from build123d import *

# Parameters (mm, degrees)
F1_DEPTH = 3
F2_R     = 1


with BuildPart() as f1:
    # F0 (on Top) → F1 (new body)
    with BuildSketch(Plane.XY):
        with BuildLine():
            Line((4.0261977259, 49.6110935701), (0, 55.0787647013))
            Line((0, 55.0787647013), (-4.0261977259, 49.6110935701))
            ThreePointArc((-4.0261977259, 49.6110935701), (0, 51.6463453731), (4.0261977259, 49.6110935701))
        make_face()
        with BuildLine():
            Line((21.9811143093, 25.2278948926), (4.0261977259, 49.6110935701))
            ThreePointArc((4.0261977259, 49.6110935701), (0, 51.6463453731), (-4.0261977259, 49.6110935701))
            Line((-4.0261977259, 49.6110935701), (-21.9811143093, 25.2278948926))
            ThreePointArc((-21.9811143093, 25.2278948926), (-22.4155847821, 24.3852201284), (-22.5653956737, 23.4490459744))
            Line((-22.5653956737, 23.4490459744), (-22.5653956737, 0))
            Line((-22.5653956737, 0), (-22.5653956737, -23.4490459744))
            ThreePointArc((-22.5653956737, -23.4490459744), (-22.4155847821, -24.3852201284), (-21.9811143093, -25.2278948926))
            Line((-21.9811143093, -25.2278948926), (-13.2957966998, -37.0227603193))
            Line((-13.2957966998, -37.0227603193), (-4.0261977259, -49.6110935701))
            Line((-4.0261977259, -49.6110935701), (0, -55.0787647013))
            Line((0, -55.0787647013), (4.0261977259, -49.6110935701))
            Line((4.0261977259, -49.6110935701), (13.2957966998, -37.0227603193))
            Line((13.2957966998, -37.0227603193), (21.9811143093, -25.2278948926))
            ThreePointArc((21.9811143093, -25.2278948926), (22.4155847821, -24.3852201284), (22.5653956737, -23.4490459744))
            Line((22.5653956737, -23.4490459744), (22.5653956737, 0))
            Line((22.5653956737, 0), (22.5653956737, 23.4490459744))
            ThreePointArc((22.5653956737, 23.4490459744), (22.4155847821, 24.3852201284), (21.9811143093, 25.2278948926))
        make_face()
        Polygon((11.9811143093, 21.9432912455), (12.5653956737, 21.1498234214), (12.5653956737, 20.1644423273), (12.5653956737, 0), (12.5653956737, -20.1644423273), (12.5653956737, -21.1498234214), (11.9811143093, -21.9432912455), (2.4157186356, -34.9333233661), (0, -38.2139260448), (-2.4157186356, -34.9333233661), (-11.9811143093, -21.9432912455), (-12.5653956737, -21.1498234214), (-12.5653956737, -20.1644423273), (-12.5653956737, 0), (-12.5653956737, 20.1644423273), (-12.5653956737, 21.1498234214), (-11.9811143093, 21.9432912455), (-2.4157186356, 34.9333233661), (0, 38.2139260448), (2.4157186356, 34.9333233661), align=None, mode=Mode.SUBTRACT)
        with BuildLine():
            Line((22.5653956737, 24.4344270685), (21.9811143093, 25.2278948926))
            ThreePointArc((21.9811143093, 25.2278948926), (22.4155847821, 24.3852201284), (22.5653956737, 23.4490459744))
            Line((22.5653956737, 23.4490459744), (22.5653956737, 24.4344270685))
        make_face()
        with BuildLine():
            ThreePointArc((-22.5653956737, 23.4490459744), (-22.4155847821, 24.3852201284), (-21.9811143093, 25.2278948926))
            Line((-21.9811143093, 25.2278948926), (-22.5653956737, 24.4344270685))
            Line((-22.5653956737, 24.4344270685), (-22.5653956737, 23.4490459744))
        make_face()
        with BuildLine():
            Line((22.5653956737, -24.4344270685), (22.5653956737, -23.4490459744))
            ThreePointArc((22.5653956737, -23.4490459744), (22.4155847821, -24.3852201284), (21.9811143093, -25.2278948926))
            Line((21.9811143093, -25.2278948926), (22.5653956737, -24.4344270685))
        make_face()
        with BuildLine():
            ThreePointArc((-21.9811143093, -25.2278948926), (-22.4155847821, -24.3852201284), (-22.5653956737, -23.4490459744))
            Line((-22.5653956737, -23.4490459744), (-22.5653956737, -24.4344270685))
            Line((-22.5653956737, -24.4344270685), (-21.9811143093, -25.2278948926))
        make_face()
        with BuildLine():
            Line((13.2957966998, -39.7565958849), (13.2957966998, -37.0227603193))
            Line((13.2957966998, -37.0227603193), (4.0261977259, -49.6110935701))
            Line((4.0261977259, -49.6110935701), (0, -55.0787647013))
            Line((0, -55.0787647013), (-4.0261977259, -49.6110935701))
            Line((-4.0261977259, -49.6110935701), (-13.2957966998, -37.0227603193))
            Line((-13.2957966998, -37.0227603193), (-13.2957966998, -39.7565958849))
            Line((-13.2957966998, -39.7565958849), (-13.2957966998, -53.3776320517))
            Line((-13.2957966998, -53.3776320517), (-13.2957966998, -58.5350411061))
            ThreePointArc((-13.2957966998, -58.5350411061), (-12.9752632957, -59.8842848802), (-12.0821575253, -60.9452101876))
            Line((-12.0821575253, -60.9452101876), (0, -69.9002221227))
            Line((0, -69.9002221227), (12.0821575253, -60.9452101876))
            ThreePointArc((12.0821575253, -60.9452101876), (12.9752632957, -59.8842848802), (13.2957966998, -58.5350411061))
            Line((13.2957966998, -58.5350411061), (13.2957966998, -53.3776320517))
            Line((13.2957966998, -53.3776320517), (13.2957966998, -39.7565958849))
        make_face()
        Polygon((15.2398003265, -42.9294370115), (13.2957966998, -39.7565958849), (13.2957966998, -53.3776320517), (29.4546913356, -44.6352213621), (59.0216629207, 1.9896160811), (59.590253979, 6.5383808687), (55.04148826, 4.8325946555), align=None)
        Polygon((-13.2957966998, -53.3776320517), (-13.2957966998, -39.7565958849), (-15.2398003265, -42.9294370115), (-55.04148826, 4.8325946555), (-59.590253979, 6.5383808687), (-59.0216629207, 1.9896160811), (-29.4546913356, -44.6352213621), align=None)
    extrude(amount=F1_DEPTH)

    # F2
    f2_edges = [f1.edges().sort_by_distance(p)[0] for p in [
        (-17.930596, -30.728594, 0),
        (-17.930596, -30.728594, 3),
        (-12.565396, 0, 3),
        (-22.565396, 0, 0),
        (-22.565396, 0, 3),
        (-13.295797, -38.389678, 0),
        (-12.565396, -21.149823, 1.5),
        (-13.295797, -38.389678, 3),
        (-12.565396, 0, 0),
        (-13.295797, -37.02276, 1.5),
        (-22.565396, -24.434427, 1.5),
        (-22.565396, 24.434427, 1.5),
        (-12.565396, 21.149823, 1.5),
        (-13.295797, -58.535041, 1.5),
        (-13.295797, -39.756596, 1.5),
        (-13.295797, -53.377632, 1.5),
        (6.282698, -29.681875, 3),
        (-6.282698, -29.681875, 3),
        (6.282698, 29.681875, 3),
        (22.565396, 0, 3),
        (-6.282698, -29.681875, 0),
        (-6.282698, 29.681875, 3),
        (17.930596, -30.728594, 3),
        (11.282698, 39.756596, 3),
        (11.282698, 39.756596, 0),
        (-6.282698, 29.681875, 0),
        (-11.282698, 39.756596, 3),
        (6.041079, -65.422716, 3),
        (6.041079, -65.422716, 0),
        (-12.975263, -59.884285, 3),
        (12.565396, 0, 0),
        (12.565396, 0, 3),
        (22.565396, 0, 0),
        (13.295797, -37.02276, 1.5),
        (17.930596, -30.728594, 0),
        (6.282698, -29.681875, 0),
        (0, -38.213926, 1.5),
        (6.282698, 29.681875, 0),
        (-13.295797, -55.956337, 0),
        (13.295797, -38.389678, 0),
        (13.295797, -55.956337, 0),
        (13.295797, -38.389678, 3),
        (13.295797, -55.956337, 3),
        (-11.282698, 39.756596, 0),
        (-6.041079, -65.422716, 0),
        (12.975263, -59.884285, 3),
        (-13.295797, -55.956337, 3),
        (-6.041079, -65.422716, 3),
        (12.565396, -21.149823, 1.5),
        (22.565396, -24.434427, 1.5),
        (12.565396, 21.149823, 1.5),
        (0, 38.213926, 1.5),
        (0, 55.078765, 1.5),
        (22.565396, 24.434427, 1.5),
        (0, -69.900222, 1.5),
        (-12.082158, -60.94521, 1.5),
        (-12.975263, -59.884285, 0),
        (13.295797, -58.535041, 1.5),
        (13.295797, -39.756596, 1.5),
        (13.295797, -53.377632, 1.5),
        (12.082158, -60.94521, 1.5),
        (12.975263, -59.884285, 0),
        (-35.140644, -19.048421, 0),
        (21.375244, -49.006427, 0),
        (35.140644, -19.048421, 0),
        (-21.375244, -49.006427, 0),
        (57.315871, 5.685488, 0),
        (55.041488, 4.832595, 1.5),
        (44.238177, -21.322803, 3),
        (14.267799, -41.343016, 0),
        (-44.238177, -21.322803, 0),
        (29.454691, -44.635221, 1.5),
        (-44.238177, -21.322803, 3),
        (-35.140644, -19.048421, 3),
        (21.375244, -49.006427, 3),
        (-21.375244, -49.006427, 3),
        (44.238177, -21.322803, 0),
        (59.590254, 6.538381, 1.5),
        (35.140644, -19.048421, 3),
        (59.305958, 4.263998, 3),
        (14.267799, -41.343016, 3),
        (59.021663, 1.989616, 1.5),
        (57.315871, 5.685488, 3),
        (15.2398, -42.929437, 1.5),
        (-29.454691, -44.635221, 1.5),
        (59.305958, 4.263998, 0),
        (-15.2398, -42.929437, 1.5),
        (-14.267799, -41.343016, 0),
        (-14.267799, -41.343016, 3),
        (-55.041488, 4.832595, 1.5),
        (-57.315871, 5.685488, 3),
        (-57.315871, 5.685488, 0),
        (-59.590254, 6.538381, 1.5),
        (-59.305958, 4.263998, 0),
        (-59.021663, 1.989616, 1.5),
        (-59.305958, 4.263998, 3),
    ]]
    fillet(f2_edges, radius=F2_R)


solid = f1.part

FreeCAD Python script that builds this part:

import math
import FreeCAD as App
import Part
import Sketcher

V = App.Vector


def add_polygon(sketch, points):
    """Adds a closed chain of lines whose ends are joined by coincident constraints."""
    first, n = sketch.GeometryCount, len(points)
    for a, b in zip(points, points[1:] + points[:1]):
        sketch.addGeometry(Part.LineSegment(App.Vector(*a, 0), App.Vector(*b, 0)), False)
    for i in range(n):
        sketch.addConstraint(Sketcher.Constraint("Coincident", first + i, 2, first + (i + 1) % n, 1))

doc = App.newDocument("Part")
body = doc.addObject("PartDesign::Body", "Body")

sketch1 = body.newObject("Sketcher::SketchObject", "Sketch")
sketch1.AttachmentSupport = (doc.getObject("XY_Plane"), [""])
sketch1.MapMode = "FlatFace"
sketch1.addGeometry(Part.LineSegment(V(4, 49.6, 0), V(0, 55.1, 0)), False)
sketch1.addGeometry(Part.LineSegment(V(0, 55.1, 0), V(-4, 49.6, 0)), False)
sketch1.addGeometry(Part.LineSegment(V(-4, 49.6, 0), V(-22, 25.2, 0)), False)
sketch1.addGeometry(Part.LineSegment(V(-22, 25.2, 0), V(-22.6, 24.4, 0)), False)
sketch1.addGeometry(Part.LineSegment(V(-22.6, 24.4, 0), V(-22.6, -24.4, 0)), False)
sketch1.addGeometry(Part.LineSegment(V(-22.6, -24.4, 0), V(-22, -25.2, 0)), False)
sketch1.addGeometry(Part.LineSegment(V(-22, -25.2, 0), V(-13.3, -37, 0)), False)
sketch1.addGeometry(Part.LineSegment(V(-13.3, -37, 0), V(-13.3, -39.8, 0)), False)
sketch1.addGeometry(Part.LineSegment(V(-13.3, -39.8, 0), V(-15.2, -42.9, 0)), False)
sketch1.addGeometry(Part.LineSegment(V(-15.2, -42.9, 0), V(-55, 4.8, 0)), False)
sketch1.addGeometry(Part.LineSegment(V(-55, 4.8, 0), V(-59.6, 6.5, 0)), False)
sketch1.addGeometry(Part.LineSegment(V(-59.6, 6.5, 0), V(-59, 2, 0)), False)
sketch1.addGeometry(Part.LineSegment(V(-59, 2, 0), V(-29.5, -44.6, 0)), False)
sketch1.addGeometry(Part.LineSegment(V(-29.5, -44.6, 0), V(-13.3, -53.4, 0)), False)
sketch1.addGeometry(Part.LineSegment(V(-13.3, -53.4, 0), V(-13.3, -58.5, 0)), False)
sketch1.addGeometry(Part.ArcOfCircle(Part.Circle(V(-10.3, -58.5, 0), V(0, 0, 1), 3), math.radians(180), math.radians(233)), False)
sketch1.addGeometry(Part.LineSegment(V(-12.1, -60.9, 0), V(0, -69.9, 0)), False)
sketch1.addGeometry(Part.LineSegment(V(0, -69.9, 0), V(12.1, -60.9, 0)), False)
sketch1.addGeometry(Part.ArcOfCircle(Part.Circle(V(10.3, -58.5, 0), V(0, 0, 1), 3), math.radians(-53), math.radians(0)), False)
sketch1.addGeometry(Part.LineSegment(V(13.3, -58.5, 0), V(13.3, -53.4, 0)), False)
sketch1.addGeometry(Part.LineSegment(V(13.3, -53.4, 0), V(29.5, -44.6, 0)), False)
sketch1.addGeometry(Part.LineSegment(V(29.5, -44.6, 0), V(59, 2, 0)), False)
sketch1.addGeometry(Part.LineSegment(V(59, 2, 0), V(59.6, 6.5, 0)), False)
sketch1.addGeometry(Part.LineSegment(V(59.6, 6.5, 0), V(55, 4.8, 0)), False)
sketch1.addGeometry(Part.LineSegment(V(55, 4.8, 0), V(15.2, -42.9, 0)), False)
sketch1.addGeometry(Part.LineSegment(V(15.2, -42.9, 0), V(13.3, -39.8, 0)), False)
sketch1.addGeometry(Part.LineSegment(V(13.3, -39.8, 0), V(13.3, -37, 0)), False)
sketch1.addGeometry(Part.LineSegment(V(13.3, -37, 0), V(22, -25.2, 0)), False)
sketch1.addGeometry(Part.LineSegment(V(22, -25.2, 0), V(22.6, -24.4, 0)), False)
sketch1.addGeometry(Part.LineSegment(V(22.6, -24.4, 0), V(22.6, 24.4, 0)), False)
sketch1.addGeometry(Part.LineSegment(V(22.6, 24.4, 0), V(22, 25.2, 0)), False)
sketch1.addGeometry(Part.LineSegment(V(22, 25.2, 0), V(4, 49.6, 0)), False)
add_polygon(sketch1, [(2.4, 34.9), (12, 21.9), (12.6, 21.1), (12.6, -21.1), (12, -21.9), (2.4, -34.9), (0, -38.2), (-2.4, -34.9), (-12, -21.9), (-12.6, -21.1), (-12.6, 21.1), (-12, 21.9), (-2.4, 34.9), (0, 38.2)])
sketch1.addConstraint([
    Sketcher.Constraint("Coincident", 0, 2, 1, 1),
    Sketcher.Constraint("Coincident", 1, 2, 2, 1),
    Sketcher.Constraint("Coincident", 2, 2, 3, 1),
    Sketcher.Constraint("Coincident", 3, 2, 4, 1),
    Sketcher.Constraint("Coincident", 4, 2, 5, 1),
    Sketcher.Constraint("Coincident", 5, 2, 6, 1),
    Sketcher.Constraint("Coincident", 6, 2, 7, 1),
    Sketcher.Constraint("Coincident", 7, 2, 8, 1),
    Sketcher.Constraint("Coincident", 8, 2, 9, 1),
    Sketcher.Constraint("Coincident", 9, 2, 10, 1),
    Sketcher.Constraint("Coincident", 10, 2, 11, 1),
    Sketcher.Constraint("Coincident", 11, 2, 12, 1),
    Sketcher.Constraint("Coincident", 12, 2, 13, 1),
    Sketcher.Constraint("Coincident", 13, 2, 14, 1),
    Sketcher.Constraint("Tangent", 14, 2, 15, 1),
    Sketcher.Constraint("Tangent", 15, 2, 16, 1),
    Sketcher.Constraint("Coincident", 16, 2, 17, 1),
    Sketcher.Constraint("Tangent", 17, 2, 18, 1),
    Sketcher.Constraint("Tangent", 18, 2, 19, 1),
    Sketcher.Constraint("Coincident", 19, 2, 20, 1),
    Sketcher.Constraint("Coincident", 20, 2, 21, 1),
    Sketcher.Constraint("Coincident", 21, 2, 22, 1),
    Sketcher.Constraint("Coincident", 22, 2, 23, 1),
    Sketcher.Constraint("Coincident", 23, 2, 24, 1),
    Sketcher.Constraint("Coincident", 24, 2, 25, 1),
    Sketcher.Constraint("Coincident", 25, 2, 26, 1),
    Sketcher.Constraint("Coincident", 26, 2, 27, 1),
    Sketcher.Constraint("Coincident", 27, 2, 28, 1),
    Sketcher.Constraint("Coincident", 28, 2, 29, 1),
    Sketcher.Constraint("Coincident", 29, 2, 30, 1),
    Sketcher.Constraint("Coincident", 30, 2, 31, 1),
    Sketcher.Constraint("Coincident", 31, 2, 0, 1),
    Sketcher.Constraint("Vertical", 4),
    Sketcher.Constraint("Vertical", 7),
    Sketcher.Constraint("Vertical", 14),
    Sketcher.Constraint("Vertical", 19),
    Sketcher.Constraint("Vertical", 26),
    Sketcher.Constraint("Vertical", 29),
    Sketcher.Constraint("Vertical", 34),
    Sketcher.Constraint("Vertical", 41),
    Sketcher.Constraint("Equal", 15, 18),
    Sketcher.Constraint("Symmetric", 2, 2, 27, 2, -1, 1),
    Sketcher.Constraint("Symmetric", 3, 2, 28, 2, -1, 1),
    Sketcher.Constraint("Symmetric", 5, 2, 30, 2, -1, 1),
    Sketcher.Constraint("Symmetric", 32, 2, 39, 2, -1, 1),
    Sketcher.Constraint("Symmetric", 33, 2, 40, 2, -1, 1),
    Sketcher.Constraint("Symmetric", 35, 2, 42, 2, -1, 1),
    Sketcher.Constraint("Symmetric", 36, 2, 43, 2, -1, 1),
    Sketcher.Constraint("Symmetric", 37, 2, 44, 2, -1, 1),
    Sketcher.Constraint("Symmetric", 38, 2, 45, 2, -1, 1),
    Sketcher.Constraint("Symmetric", 15, 3, 18, 3, -2),
    Sketcher.Constraint("Symmetric", 12, 2, 20, 2, -2),
    Sketcher.Constraint("Symmetric", 11, 2, 21, 2, -2),
    Sketcher.Constraint("Symmetric", 10, 2, 22, 2, -2),
    Sketcher.Constraint("Symmetric", 9, 2, 23, 2, -2),
    Sketcher.Constraint("Symmetric", 8, 2, 24, 2, -2),
    Sketcher.Constraint("Symmetric", 7, 2, 25, 2, -2),
    Sketcher.Constraint("Symmetric", 5, 2, 27, 2, -2),
    Sketcher.Constraint("Symmetric", 1, 2, 31, 2, -2),
    Sketcher.Constraint("Symmetric", 36, 2, 38, 2, -2),
    Sketcher.Constraint("Symmetric", 35, 2, 39, 2, -2),
    Sketcher.Constraint("PointOnObject", 0, 2, -2),
    Sketcher.Constraint("PointOnObject", 16, 2, -2),
    Sketcher.Constraint("PointOnObject", 37, 2, -2),
    Sketcher.Constraint("Parallel", 1, 2),
    Sketcher.Constraint("Parallel", 2, 3),
    Sketcher.Constraint("Parallel", 0, 5),
    Sketcher.Constraint("Parallel", 5, 6),
    Sketcher.Constraint("Parallel", 3, 27),
    Sketcher.Constraint("Parallel", 6, 30),
    Sketcher.Constraint("Parallel", 31, 32),
    Sketcher.Constraint("Parallel", 32, 33),
    Sketcher.Constraint("Parallel", 28, 35),
    Sketcher.Constraint("Parallel", 36, 37),
    Sketcher.Constraint("Parallel", 37, 42),
    Sketcher.Constraint("Horizontal", 13, 2, 19, 2),
    Sketcher.Constraint("Vertical", 7, 2, 13, 2),
    Sketcher.Constraint("Equal", 30, 33),
    Sketcher.Constraint("Radius", 15, 3.0),
    Sketcher.Constraint("DistanceX", 32, 2, 30, 2, 10.0),
    Sketcher.Constraint("DistanceY", 16, 2, 20, 2, 25.265001),
    Sketcher.Constraint("DistanceY", 14, 2, 14, 1, 5.157409),
    Sketcher.Constraint("DistanceX", 8, 2, -1, 1, 15.2398),
    Sketcher.Constraint("DistanceX", 15, 3, 1, 2, 6.269599),
    Sketcher.Constraint("DistanceY", 2, 2, 1, 2, 24.383199),
    Sketcher.Constraint("DistanceX", 3, 2, 15, 3, 12.269599),
    Sketcher.Constraint("DistanceY", 7, 2, 5, 2, 14.528701),
    Sketcher.Constraint("DistanceY", 9, 2, 2, 2, 20.3953),
    Sketcher.Constraint("DistanceY", 38, 2, 40, 2, 13.7835),
    Sketcher.Constraint("Distance", 3, 0.985381),
    Sketcher.Constraint("Distance", 8, 3.721031),
    Sketcher.Constraint("Distance", 9, 62.172229),
    Sketcher.Constraint("Distance", 12, 55.209431),
    Sketcher.Constraint("Distance", 13, 18.372251),
    Sketcher.Constraint("Distance", 37, 4.074071),
    Sketcher.Constraint("DistanceY", 4, 2, 4, 1, 48.868854),
    Sketcher.Constraint("DistanceY", 34, 2, 34, 1, 42.299647),
    Sketcher.Constraint("DistanceY", 15, 3, -1, 1, 58.535041),
    Sketcher.Constraint("DistanceY", -1, 1, 10, 2, 6.538381),
    Sketcher.Constraint("DistanceX", 12, 2, -1, 1, 29.454691),
    Sketcher.Constraint("DistanceX", 10, 2, 3, 2, 37.024858),
    Sketcher.Constraint("DistanceX", 10, 2, 11, 2, 0.568591),
])
pad1 = body.newObject("PartDesign::Pad", "Pad")
pad1.Profile = sketch1
pad1.Length = 3
doc.recompute()

fillet = body.newObject("PartDesign::Fillet", "Fillet")
fillet.Base = (pad1, ["Edge1"])
fillet.UseAllEdges = True
fillet.Radius = 1

doc.recompute()
